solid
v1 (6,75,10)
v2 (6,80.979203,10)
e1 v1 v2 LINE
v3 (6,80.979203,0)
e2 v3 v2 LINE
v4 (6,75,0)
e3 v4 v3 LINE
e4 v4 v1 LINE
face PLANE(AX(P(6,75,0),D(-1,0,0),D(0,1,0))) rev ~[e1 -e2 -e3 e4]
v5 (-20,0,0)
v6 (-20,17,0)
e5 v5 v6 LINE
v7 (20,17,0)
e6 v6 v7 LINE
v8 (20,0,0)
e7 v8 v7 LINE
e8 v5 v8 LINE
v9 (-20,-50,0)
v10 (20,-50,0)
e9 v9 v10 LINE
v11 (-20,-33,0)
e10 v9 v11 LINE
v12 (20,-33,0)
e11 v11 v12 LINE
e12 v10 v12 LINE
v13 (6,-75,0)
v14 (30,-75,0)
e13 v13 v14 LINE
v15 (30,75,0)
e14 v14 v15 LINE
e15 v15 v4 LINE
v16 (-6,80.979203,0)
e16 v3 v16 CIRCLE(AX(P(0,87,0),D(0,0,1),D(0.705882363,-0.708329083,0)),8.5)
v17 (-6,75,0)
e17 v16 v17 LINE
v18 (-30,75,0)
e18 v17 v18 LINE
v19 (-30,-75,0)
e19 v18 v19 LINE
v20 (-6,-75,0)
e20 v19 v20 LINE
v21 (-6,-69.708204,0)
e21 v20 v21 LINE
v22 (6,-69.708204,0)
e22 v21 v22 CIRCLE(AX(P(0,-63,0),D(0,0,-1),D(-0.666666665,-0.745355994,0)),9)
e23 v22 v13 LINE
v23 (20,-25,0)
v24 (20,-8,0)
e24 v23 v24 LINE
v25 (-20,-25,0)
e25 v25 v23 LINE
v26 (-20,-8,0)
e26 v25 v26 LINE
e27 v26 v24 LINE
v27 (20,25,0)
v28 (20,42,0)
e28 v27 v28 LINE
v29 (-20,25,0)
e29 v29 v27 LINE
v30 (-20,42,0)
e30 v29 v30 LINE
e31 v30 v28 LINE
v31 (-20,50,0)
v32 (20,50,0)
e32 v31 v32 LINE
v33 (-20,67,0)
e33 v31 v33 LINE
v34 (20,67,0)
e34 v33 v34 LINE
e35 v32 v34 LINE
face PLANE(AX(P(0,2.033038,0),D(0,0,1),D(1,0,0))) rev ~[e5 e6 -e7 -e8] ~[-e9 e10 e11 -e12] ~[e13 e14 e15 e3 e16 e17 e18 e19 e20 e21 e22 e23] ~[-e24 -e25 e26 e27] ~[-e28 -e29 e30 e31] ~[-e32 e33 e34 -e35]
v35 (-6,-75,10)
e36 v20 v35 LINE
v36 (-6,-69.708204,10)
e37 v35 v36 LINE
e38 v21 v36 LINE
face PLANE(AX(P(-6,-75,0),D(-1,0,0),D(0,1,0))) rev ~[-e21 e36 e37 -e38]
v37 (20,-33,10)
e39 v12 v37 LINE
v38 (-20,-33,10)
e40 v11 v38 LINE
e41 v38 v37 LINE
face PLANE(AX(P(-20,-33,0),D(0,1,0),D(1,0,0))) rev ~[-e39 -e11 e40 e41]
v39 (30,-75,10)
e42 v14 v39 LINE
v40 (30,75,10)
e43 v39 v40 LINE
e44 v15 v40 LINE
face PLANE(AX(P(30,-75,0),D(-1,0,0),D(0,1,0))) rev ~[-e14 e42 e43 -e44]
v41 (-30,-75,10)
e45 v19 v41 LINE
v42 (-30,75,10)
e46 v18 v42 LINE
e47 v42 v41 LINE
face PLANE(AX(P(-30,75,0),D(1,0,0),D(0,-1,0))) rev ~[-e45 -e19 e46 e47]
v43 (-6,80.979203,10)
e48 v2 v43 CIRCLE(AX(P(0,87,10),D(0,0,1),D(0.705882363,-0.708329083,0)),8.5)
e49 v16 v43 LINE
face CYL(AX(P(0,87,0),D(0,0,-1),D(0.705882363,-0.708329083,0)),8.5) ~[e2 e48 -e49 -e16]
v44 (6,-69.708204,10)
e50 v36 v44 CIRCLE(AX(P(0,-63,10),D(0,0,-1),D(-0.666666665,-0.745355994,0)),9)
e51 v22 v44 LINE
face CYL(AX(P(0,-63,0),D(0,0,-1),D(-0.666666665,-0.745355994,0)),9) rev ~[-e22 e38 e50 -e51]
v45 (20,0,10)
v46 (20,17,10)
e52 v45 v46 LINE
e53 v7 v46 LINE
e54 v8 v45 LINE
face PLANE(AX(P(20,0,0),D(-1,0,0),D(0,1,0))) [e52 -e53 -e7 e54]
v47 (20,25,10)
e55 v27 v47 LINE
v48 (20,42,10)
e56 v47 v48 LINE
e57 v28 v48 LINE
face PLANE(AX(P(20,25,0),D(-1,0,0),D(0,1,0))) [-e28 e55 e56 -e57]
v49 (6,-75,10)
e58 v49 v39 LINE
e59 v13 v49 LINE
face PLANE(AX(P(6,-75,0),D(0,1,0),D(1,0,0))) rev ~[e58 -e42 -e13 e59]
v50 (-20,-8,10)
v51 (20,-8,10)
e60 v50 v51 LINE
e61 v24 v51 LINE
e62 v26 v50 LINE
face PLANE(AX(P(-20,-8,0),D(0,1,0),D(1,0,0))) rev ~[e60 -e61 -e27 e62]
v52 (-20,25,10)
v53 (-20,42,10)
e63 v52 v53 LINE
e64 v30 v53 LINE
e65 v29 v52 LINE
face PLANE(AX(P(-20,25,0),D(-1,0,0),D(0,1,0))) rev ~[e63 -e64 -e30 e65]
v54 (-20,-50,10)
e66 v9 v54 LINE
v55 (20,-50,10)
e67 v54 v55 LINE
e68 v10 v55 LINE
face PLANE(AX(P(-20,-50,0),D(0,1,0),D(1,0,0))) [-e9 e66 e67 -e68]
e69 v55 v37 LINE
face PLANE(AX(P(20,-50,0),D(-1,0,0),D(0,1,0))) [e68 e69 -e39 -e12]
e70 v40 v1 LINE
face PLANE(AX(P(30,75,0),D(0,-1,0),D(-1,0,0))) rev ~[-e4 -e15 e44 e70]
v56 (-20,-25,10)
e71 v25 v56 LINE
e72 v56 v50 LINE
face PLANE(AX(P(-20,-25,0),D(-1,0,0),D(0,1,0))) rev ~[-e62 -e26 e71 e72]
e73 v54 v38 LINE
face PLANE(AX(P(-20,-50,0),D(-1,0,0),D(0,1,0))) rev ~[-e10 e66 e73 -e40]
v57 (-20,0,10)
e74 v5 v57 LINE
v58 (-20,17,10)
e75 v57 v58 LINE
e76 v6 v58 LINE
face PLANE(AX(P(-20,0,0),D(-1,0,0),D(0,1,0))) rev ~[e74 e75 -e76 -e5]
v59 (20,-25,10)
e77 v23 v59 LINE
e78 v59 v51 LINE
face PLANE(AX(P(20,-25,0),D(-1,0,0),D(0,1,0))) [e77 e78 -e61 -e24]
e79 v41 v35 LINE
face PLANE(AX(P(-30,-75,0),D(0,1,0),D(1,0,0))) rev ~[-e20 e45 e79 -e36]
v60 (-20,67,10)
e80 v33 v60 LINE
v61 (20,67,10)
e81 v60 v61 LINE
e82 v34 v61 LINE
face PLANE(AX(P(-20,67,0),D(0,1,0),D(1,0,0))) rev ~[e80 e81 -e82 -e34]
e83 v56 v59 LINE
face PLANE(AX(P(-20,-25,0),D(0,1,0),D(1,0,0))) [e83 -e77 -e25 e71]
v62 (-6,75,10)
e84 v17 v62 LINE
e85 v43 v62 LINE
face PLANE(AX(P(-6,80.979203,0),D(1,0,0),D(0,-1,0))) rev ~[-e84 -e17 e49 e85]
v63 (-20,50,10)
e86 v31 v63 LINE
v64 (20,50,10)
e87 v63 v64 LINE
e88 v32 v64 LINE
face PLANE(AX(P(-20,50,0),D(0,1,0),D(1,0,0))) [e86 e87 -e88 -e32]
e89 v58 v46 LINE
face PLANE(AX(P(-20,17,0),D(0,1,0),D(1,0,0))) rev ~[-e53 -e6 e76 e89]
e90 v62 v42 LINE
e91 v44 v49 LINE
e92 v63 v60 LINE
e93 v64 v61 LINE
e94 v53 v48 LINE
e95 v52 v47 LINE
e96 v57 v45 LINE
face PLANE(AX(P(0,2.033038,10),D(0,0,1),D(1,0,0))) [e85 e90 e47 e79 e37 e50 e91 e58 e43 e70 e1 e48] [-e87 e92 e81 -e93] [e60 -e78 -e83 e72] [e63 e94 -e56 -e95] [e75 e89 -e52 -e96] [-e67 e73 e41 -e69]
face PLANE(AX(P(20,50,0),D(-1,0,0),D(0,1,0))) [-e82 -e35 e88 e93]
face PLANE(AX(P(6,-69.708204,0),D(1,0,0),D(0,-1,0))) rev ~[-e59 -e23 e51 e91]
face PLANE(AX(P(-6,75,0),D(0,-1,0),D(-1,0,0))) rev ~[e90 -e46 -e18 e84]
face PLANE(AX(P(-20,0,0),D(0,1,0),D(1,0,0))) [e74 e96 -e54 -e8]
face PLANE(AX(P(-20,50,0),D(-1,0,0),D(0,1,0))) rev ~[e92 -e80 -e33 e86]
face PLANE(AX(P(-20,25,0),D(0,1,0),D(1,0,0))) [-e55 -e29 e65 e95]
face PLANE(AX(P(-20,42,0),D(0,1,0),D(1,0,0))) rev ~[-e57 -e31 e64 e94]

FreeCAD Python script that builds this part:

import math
import FreeCAD as App
import Part
import Sketcher
from FreeCAD import Vector

doc = App.newDocument("Part")
params = doc.addObject("Spreadsheet::Sheet", "Params")
for row, (alias, value) in enumerate([
    ("sketch1_radius", "9 mm"),
    ("sketch1_radius2", "8.5 mm"),
    ("sketch1_width", "24 mm"),
    ("sketch1_width2", "40 mm"),
    ("sketch1_height", "150 mm"),
    ("pad1_length", "10 mm"),
], start=1):
    params.set(f"A{row}", alias)
    params.set(f"B{row}", "=" + value)
    params.setAlias(f"B{row}", alias)

body = doc.addObject("PartDesign::Body", "Body")

# Sketch on XY plane
sketch1 = body.newObject("Sketcher::SketchObject", "Sketch")
sketch1.AttachmentSupport = (doc.getObject("XY_Plane"), [""])
sketch1.MapMode = "FlatFace"
sketch1.addGeometry([
    Part.LineSegment(Vector(-6, 75, 0), Vector(-30, 75, 0)),  # 0
    Part.LineSegment(Vector(-30, 75, 0), Vector(-30, -75, 0)),  # 1
    Part.LineSegment(Vector(-30, -75, 0), Vector(-6, -75, 0)),  # 2
    Part.LineSegment(Vector(-6, -75, 0), Vector(-6, -70, 0)),  # 3
    Part.ArcOfCircle(Part.Circle(Vector(0, -63, 0), Vector(0, 0, 1), 9), math.radians(-48), math.radians(228)),  # 4
    Part.LineSegment(Vector(6, -70, 0), Vector(6, -75, 0)),  # 5
    Part.LineSegment(Vector(6, -75, 0), Vector(30, -75, 0)),  # 6
    Part.LineSegment(Vector(30, -75, 0), Vector(30, 75, 0)),  # 7
    Part.LineSegment(Vector(30, 75, 0), Vector(6, 75, 0)),  # 8
    Part.LineSegment(Vector(6, 75, 0), Vector(6, 81, 0)),  # 9
    Part.ArcOfCircle(Part.Circle(Vector(0, 87, 0), Vector(0, 0, 1), 8), math.radians(-45), math.radians(225)),  # 10
    Part.LineSegment(Vector(-6, 81, 0), Vector(-6, 75, 0)),  # 11
    Part.LineSegment(Vector(20, -50, 0), Vector(-20, -50, 0)),  # 12
    Part.LineSegment(Vector(-20, -50, 0), Vector(-20, -33, 0)),  # 13
    Part.LineSegment(Vector(-20, -33, 0), Vector(20, -33, 0)),  # 14
    Part.LineSegment(Vector(20, -33, 0), Vector(20, -50, 0)),  # 15
    Part.LineSegment(Vector(20, -25, 0), Vector(-20, -25, 0)),  # 16
    Part.LineSegment(Vector(-20, -25, 0), Vector(-20, -8, 0)),  # 17
    Part.LineSegment(Vector(-20, -8, 0), Vector(20, -8, 0)),  # 18
    Part.LineSegment(Vector(20, -8, 0), Vector(20, -25, 0)),  # 19
    Part.LineSegment(Vector(20, 0, 0), Vector(-20, 0, 0)),  # 20
    Part.LineSegment(Vector(-20, 0, 0), Vector(-20, 17, 0)),  # 21
    Part.LineSegment(Vector(-20, 17, 0), Vector(20, 17, 0)),  # 22
    Part.LineSegment(Vector(20, 17, 0), Vector(20, 0, 0)),  # 23
    Part.LineSegment(Vector(20, 25, 0), Vector(-20, 25, 0)),  # 24
    Part.LineSegment(Vector(-20, 25, 0), Vector(-20, 42, 0)),  # 25
    Part.LineSegment(Vector(-20, 42, 0), Vector(20, 42, 0)),  # 26
    Part.LineSegment(Vector(20, 42, 0), Vector(20, 25, 0)),  # 27
    Part.LineSegment(Vector(20, 50, 0), Vector(-20, 50, 0)),  # 28
    Part.LineSegment(Vector(-20, 50, 0), Vector(-20, 67, 0)),  # 29
    Part.LineSegment(Vector(-20, 67, 0), Vector(20, 67, 0)),  # 30
    Part.LineSegment(Vector(20, 67, 0), Vector(20, 50, 0)),  # 31
], False)
sketch1.addConstraint([
    Sketcher.Constraint("Coincident", 0, 2, 1, 1),
    Sketcher.Constraint("Coincident", 1, 2, 2, 1),
    Sketcher.Constraint("Coincident", 2, 2, 3, 1),
    Sketcher.Constraint("Coincident", 3, 2, 4, 2),
    Sketcher.Constraint("Coincident", 4, 1, 5, 1),
    Sketcher.Constraint("Coincident", 5, 2, 6, 1),
    Sketcher.Constraint("Coincident", 6, 2, 7, 1),
    Sketcher.Constraint("Coincident", 7, 2, 8, 1),
    Sketcher.Constraint("Coincident", 8, 2, 9, 1),
    Sketcher.Constraint("Coincident", 9, 2, 10, 1),
    Sketcher.Constraint("Coincident", 10, 2, 11, 1),
    Sketcher.Constraint("Coincident", 11, 2, 0, 1),
    Sketcher.Constraint("Coincident", 12, 2, 13, 1),
    Sketcher.Constraint("Coincident", 13, 2, 14, 1),
    Sketcher.Constraint("Coincident", 14, 2, 15, 1),
    Sketcher.Constraint("Coincident", 15, 2, 12, 1),
    Sketcher.Constraint("Coincident", 16, 2, 17, 1),
    Sketcher.Constraint("Coincident", 17, 2, 18, 1),
    Sketcher.Constraint("Coincident", 18, 2, 19, 1),
    Sketcher.Constraint("Coincident", 19, 2, 16, 1),
    Sketcher.Constraint("Coincident", 20, 2, 21, 1),
    Sketcher.Constraint("Coincident", 21, 2, 22, 1),
    Sketcher.Constraint("Coincident", 22, 2, 23, 1),
    Sketcher.Constraint("Coincident", 23, 2, 20, 1),
    Sketcher.Constraint("Coincident", 24, 2, 25, 1),
    Sketcher.Constraint("Coincident", 25, 2, 26, 1),
    Sketcher.Constraint("Coincident", 26, 2, 27, 1),
    Sketcher.Constraint("Coincident", 27, 2, 24, 1),
    Sketcher.Constraint("Coincident", 28, 2, 29, 1),
    Sketcher.Constraint("Coincident", 29, 2, 30, 1),
    Sketcher.Constraint("Coincident", 30, 2, 31, 1),
    Sketcher.Constraint("Coincident", 31, 2, 28, 1),
    Sketcher.Constraint("Horizontal", 0),
    Sketcher.Constraint("Vertical", 1),
    Sketcher.Constraint("Horizontal", 2),
    Sketcher.Constraint("Vertical", 3),
    Sketcher.Constraint("Vertical", 5),
    Sketcher.Constraint("Horizontal", 6),
    Sketcher.Constraint("Vertical", 7),
    Sketcher.Constraint("Horizontal", 8),
    Sketcher.Constraint("Vertical", 9),
    Sketcher.Constraint("Vertical", 11),
    Sketcher.Constraint("Horizontal", 12),
    Sketcher.Constraint("Vertical", 13),
    Sketcher.Constraint("Horizontal", 14),
    Sketcher.Constraint("Vertical", 15),
    Sketcher.Constraint("Horizontal", 16),
    Sketcher.Constraint("Vertical", 17),
    Sketcher.Constraint("Horizontal", 18),
    Sketcher.Constraint("Vertical", 19),
    Sketcher.Constraint("Horizontal", 20),
    Sketcher.Constraint("Vertical", 21),
    Sketcher.Constraint("Horizontal", 22),
    Sketcher.Constraint("Vertical", 23),
    Sketcher.Constraint("Horizontal", 24),
    Sketcher.Constraint("Vertical", 25),
    Sketcher.Constraint("Horizontal", 26),
    Sketcher.Constraint("Vertical", 27),
    Sketcher.Constraint("Horizontal", 28),
    Sketcher.Constraint("Vertical", 29),
    Sketcher.Constraint("Horizontal", 30),
    Sketcher.Constraint("Vertical", 31),
    Sketcher.Constraint("Symmetric", 0, 2, 6, 2, -1, 1),
    Sketcher.Constraint("Symmetric", 2, 2, 8, 2, -1, 1),
    Sketcher.Constraint("Symmetric", 20, 2, 23, 2, -1, 1),
    Sketcher.Constraint("Symmetric", 19, 2, 24, 2, -1, 1),
    Sketcher.Constraint("Symmetric", 15, 2, 28, 2, -1, 1),
    Sketcher.Constraint("Symmetric", 3, 2, 4, 1, -2),
    Sketcher.Constraint("Symmetric", 9, 2, 10, 2, -2),
    Sketcher.Constraint("Horizontal", 2, 2, 5, 2),
    Sketcher.Constraint("Vertical", 13, 2, 16, 2),
    Sketcher.Constraint("Vertical", 15, 2, 18, 2),
    Sketcher.Constraint("Vertical", 17, 2, 20, 2),
    Sketcher.Constraint("Vertical", 19, 2, 22, 2),
    Sketcher.Constraint("Vertical", 23, 2, 26, 2),
    Sketcher.Constraint("Vertical", 27, 2, 30, 2),
    Sketcher.Constraint("Equal", 15, 17),
    Sketcher.Constraint("Equal", 19, 21),
    Sketcher.Constraint("Equal", 23, 25),
    Sketcher.Constraint("Equal", 27, 29),
    Sketcher.Constraint("Radius", 4, 9.0),
    Sketcher.Constraint("Radius", 10, 8.5),
    Sketcher.Constraint("DistanceX", 0, 2, 0, 1, 24.0),
    Sketcher.Constraint("DistanceX", 12, 2, 12, 1, 40.0),
    Sketcher.Constraint("DistanceY", 1, 2, 1, 1, 150.0),
    Sketcher.Constraint("DistanceY", 13, 1, 13, 2, 17.0),
    Sketcher.Constraint("DistanceY", 4, 3, -1, 1, 63.0),
    Sketcher.Constraint("DistanceY", -1, 1, 10, 3, 87.0),
    Sketcher.Constraint("DistanceX", 0, 2, -1, 1, 30.0),
    Sketcher.Constraint("DistanceY", 12, 2, -1, 1, 50.0),
    Sketcher.Constraint("DistanceY", 16, 2, -1, 1, 25.0),
])
sketch1.setExpression("Constraints[80]", "Params.sketch1_radius")
sketch1.setExpression("Constraints[81]", "Params.sketch1_radius2")
sketch1.setExpression("Constraints[82]", "Params.sketch1_width")
sketch1.setExpression("Constraints[83]", "Params.sketch1_width2")
sketch1.setExpression("Constraints[84]", "Params.sketch1_height")
pad1 = body.newObject("PartDesign::Pad", "Pad")
pad1.Profile = sketch1
pad1.setExpression("Length", "Params.pad1_length")

doc.recompute()
